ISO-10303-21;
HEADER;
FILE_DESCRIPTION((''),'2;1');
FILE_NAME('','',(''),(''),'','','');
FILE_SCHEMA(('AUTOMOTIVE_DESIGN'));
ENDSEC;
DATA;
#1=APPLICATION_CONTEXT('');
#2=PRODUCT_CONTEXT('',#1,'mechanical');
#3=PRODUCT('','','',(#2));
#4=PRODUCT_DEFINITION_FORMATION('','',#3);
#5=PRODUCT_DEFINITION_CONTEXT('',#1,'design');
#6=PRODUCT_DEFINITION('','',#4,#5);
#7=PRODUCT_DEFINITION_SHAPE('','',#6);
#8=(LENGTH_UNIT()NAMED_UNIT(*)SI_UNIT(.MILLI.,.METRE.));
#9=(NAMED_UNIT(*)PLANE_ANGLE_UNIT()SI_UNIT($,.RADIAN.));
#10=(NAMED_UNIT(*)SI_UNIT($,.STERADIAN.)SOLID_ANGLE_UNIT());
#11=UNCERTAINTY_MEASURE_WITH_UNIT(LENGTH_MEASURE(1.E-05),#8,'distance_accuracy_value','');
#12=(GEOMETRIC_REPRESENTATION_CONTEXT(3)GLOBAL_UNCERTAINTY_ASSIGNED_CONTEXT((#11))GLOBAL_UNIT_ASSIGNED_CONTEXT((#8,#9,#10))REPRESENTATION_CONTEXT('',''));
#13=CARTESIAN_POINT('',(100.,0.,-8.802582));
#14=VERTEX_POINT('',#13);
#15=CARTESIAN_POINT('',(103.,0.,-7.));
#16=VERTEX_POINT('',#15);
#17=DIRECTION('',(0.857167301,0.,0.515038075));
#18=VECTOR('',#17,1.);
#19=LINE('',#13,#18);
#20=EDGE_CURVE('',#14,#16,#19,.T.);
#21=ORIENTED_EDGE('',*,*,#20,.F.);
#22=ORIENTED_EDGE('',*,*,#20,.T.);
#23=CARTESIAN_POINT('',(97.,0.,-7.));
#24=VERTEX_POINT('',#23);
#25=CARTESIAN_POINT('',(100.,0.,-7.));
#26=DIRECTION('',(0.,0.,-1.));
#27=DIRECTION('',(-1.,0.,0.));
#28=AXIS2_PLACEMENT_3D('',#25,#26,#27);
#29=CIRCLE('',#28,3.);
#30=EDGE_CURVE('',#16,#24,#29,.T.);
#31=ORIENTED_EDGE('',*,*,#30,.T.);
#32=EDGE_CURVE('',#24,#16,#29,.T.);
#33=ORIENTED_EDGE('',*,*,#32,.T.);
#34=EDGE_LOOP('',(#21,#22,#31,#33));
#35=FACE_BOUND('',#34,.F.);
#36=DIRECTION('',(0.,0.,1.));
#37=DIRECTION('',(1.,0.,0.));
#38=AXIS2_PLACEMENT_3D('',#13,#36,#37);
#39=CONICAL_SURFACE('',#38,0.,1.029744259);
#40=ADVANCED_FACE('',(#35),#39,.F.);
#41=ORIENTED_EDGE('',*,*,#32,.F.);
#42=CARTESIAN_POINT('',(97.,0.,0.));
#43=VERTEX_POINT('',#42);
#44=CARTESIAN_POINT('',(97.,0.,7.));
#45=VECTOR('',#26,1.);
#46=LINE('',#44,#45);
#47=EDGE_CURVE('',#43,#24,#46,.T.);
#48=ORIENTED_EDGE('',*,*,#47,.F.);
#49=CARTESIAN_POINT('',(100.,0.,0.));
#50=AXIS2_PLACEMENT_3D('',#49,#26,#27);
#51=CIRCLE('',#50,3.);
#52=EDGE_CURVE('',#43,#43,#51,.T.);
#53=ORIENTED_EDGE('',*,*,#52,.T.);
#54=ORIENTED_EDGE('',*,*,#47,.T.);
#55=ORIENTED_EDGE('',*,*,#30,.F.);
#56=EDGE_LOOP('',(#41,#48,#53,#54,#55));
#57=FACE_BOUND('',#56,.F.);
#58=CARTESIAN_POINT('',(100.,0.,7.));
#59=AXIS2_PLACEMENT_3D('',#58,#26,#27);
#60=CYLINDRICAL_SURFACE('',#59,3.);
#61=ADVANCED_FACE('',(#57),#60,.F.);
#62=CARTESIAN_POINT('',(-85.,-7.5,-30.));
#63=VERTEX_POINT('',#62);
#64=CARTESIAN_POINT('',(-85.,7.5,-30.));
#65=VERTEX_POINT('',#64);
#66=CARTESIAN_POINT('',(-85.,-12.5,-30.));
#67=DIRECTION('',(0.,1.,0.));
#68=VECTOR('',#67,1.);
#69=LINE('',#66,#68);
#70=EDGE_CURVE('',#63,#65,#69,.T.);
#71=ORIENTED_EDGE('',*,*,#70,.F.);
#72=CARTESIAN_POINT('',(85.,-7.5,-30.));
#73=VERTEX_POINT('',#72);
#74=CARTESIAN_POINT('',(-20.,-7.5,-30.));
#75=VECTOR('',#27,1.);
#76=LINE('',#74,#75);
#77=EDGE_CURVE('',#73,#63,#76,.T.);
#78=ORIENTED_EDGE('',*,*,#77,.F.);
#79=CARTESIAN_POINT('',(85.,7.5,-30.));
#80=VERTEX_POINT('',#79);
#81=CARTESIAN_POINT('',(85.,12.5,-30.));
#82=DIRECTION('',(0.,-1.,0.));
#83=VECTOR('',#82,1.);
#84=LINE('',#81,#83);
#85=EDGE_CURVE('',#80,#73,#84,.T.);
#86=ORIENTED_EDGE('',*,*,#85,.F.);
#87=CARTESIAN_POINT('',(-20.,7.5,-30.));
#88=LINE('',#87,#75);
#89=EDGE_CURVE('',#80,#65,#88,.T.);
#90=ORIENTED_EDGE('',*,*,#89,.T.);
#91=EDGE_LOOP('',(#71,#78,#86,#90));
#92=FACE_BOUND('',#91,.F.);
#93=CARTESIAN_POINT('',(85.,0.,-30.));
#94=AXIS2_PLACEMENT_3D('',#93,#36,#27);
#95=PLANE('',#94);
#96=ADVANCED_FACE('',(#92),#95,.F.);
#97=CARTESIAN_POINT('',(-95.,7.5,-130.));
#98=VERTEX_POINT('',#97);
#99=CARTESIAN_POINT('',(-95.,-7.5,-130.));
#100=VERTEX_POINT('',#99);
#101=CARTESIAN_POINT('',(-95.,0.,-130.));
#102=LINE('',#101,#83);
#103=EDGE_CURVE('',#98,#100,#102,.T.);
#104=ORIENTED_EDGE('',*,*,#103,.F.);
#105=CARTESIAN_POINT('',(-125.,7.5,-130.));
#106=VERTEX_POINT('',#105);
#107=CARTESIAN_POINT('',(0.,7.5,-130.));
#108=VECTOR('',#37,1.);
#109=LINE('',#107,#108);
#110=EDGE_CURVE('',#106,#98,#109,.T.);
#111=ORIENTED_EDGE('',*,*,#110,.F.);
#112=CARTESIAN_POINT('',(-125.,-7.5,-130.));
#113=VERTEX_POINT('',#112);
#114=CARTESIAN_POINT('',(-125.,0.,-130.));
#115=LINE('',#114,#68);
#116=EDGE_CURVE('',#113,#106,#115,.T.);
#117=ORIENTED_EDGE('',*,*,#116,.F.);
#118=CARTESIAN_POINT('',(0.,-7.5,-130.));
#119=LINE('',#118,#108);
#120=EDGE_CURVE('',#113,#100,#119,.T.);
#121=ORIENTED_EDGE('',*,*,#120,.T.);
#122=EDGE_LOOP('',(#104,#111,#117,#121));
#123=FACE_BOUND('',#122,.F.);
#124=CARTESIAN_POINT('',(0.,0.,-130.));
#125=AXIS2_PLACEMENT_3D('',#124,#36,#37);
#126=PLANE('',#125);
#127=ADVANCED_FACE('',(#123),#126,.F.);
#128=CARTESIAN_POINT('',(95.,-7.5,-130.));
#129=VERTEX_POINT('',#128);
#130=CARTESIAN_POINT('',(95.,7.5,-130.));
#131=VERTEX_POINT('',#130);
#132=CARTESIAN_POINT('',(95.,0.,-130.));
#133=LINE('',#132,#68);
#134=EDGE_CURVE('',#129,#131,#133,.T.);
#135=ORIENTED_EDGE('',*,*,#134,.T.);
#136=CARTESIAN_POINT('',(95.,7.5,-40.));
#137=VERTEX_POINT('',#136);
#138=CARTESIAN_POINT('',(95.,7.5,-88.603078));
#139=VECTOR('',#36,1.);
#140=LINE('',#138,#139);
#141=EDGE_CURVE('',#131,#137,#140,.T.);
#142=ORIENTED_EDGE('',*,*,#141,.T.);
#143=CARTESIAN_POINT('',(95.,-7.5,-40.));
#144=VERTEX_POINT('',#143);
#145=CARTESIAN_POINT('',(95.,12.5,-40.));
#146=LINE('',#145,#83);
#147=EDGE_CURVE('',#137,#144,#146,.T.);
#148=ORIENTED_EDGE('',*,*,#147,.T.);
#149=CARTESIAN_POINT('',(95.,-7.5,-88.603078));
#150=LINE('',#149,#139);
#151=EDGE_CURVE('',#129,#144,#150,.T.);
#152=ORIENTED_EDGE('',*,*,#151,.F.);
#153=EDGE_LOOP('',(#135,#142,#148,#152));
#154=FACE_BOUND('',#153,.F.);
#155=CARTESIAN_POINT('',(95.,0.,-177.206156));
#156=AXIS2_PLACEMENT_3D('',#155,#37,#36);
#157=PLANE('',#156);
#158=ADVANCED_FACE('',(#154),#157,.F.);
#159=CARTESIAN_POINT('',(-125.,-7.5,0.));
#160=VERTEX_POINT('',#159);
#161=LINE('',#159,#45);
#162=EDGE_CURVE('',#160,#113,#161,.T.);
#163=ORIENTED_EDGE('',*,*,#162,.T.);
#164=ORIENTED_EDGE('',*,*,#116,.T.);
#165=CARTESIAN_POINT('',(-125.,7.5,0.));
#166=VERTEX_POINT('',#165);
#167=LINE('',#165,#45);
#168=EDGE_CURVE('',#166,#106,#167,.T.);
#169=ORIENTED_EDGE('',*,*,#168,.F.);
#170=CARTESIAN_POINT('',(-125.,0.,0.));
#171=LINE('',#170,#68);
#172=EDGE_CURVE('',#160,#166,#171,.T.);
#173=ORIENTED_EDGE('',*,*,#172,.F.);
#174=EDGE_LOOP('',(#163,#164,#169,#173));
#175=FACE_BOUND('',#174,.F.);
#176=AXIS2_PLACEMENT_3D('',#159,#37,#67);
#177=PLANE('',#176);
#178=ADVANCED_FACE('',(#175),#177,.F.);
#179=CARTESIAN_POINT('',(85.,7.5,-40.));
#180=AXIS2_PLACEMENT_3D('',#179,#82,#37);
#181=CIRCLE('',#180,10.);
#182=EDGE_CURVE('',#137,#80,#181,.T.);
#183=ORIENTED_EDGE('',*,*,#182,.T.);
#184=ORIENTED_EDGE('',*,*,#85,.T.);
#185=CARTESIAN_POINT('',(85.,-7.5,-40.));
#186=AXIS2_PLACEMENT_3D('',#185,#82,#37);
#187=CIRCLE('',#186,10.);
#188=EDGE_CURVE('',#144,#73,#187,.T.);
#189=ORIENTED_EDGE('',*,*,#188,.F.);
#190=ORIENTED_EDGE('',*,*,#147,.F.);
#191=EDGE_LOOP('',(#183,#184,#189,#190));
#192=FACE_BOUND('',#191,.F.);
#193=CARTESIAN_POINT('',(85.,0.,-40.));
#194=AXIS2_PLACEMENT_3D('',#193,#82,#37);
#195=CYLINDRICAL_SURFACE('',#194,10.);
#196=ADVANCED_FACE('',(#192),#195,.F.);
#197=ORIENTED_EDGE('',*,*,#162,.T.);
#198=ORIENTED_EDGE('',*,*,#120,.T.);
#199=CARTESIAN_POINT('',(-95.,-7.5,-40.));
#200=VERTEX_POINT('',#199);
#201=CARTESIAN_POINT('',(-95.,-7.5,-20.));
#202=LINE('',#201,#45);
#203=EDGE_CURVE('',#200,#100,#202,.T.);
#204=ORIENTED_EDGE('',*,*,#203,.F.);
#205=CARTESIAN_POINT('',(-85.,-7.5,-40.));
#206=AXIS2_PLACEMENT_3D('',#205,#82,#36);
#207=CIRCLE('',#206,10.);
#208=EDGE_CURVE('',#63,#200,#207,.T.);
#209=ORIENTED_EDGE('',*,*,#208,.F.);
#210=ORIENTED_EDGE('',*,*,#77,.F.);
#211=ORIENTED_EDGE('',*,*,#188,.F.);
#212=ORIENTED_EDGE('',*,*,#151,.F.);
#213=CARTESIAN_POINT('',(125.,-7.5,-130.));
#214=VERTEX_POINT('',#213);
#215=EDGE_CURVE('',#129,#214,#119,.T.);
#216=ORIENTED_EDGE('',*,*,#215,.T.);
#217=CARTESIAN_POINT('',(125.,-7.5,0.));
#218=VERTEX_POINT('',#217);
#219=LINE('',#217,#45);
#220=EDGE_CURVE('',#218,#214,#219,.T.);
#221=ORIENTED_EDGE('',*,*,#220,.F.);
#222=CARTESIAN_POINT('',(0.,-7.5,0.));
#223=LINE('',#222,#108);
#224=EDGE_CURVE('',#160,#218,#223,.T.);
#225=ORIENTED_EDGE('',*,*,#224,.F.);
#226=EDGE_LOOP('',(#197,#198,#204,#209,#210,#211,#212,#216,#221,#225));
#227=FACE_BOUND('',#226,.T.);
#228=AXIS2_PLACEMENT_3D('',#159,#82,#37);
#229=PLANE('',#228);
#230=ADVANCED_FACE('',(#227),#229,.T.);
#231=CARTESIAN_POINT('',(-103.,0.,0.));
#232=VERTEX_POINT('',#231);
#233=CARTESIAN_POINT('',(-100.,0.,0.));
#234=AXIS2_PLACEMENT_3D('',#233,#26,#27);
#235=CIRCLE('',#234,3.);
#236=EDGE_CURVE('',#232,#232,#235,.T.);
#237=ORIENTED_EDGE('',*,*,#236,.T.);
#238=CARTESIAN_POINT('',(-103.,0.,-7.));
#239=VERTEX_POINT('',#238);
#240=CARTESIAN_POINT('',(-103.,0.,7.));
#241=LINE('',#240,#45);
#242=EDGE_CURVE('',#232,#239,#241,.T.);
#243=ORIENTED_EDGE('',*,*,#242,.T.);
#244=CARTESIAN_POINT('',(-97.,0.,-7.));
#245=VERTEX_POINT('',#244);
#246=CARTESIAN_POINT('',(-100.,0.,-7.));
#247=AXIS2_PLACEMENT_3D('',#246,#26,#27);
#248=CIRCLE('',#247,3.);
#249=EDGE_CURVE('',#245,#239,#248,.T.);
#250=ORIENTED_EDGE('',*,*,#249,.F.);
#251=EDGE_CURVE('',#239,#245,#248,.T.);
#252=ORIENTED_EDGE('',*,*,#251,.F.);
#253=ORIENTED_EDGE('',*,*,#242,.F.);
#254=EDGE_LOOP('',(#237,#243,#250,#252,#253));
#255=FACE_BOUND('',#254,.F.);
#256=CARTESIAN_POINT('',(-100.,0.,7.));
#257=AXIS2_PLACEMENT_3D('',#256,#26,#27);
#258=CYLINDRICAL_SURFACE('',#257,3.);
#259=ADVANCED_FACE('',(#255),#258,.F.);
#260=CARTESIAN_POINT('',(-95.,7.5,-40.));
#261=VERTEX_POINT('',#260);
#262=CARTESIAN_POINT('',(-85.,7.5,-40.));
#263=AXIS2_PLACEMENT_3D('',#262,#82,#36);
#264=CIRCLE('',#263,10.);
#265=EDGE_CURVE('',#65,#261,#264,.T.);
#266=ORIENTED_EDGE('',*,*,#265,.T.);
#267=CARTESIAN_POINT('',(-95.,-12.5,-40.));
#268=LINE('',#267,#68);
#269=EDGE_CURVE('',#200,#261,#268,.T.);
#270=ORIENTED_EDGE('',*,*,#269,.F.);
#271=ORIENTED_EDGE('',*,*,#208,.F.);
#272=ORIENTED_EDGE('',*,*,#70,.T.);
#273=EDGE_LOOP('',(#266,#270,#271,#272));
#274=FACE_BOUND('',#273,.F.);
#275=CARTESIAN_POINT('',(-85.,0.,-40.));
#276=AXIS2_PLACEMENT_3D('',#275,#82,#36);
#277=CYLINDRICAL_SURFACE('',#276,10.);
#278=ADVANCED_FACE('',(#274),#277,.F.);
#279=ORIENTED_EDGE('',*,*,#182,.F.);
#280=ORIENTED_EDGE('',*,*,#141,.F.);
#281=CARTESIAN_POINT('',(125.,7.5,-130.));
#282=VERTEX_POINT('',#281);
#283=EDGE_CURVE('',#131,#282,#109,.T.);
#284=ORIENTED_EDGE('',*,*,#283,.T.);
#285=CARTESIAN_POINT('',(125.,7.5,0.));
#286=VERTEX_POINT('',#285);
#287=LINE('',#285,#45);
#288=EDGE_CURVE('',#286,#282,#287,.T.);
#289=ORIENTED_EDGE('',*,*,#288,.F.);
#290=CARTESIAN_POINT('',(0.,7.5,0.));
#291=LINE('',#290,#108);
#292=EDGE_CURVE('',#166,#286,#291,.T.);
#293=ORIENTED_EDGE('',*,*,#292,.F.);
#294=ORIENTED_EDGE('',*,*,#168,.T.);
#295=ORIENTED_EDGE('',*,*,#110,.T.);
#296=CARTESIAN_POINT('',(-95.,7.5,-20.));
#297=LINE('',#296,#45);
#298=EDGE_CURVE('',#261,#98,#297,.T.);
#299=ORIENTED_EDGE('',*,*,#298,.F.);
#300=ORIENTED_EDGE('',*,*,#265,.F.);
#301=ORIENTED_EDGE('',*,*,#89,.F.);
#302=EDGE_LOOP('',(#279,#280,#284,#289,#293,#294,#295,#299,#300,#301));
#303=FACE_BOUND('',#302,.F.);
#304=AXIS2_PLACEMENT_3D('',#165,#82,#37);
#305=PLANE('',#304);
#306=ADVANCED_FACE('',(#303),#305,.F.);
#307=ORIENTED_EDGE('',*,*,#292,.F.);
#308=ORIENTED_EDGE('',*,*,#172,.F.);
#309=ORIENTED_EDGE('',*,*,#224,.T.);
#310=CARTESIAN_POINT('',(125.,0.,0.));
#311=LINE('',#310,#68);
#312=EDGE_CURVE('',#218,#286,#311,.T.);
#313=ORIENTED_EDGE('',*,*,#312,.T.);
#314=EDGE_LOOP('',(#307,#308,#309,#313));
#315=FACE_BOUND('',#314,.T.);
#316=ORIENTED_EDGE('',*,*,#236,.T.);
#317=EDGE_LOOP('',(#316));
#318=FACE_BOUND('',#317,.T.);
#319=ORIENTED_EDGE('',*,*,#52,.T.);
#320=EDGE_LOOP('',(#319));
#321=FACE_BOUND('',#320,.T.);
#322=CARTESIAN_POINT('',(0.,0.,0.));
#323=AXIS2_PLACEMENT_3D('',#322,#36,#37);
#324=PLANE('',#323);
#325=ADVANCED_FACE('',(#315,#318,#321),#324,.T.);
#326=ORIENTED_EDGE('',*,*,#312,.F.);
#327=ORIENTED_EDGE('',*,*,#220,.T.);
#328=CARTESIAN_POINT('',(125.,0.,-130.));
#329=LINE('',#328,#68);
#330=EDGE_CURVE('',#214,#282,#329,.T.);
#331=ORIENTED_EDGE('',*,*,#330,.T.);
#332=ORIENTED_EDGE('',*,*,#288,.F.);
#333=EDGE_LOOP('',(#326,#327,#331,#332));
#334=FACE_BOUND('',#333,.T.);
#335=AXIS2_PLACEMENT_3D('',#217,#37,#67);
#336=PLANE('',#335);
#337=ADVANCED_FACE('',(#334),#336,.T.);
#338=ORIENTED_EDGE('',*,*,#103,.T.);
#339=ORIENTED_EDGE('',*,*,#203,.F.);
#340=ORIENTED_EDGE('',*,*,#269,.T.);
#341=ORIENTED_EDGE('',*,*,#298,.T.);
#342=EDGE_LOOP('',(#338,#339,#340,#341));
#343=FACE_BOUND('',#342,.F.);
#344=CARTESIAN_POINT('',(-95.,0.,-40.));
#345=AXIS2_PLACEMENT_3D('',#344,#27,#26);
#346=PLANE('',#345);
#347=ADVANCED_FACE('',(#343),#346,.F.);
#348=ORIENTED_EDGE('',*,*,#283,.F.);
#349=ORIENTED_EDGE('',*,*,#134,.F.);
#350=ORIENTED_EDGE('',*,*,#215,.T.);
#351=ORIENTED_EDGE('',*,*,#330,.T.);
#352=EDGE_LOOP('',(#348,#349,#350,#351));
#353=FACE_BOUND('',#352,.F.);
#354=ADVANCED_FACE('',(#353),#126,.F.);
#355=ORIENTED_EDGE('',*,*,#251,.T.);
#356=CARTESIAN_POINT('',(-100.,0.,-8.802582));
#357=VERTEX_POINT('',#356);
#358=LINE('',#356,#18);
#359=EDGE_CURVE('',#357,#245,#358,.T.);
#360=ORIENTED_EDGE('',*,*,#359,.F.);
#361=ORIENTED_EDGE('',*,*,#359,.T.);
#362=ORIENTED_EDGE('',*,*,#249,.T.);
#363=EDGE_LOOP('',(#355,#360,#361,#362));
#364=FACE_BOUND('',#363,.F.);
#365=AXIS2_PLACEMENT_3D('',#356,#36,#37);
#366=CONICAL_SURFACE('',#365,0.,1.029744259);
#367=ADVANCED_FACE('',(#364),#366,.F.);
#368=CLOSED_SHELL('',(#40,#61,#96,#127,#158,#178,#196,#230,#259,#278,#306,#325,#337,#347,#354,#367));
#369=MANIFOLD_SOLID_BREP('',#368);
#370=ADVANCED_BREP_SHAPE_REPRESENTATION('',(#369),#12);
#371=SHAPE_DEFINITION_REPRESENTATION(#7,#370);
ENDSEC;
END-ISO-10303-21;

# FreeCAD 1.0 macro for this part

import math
import FreeCAD as App
import Part
import Sketcher
Q = App.Units.Quantity


def add_polygon(sketch, points):
    """Adds a closed chain of lines whose ends are joined by coincident constraints."""
    first, n = sketch.GeometryCount, len(points)
    for a, b in zip(points, points[1:] + points[:1]):
        sketch.addGeometry(Part.LineSegment(App.Vector(*a, 0), App.Vector(*b, 0)), False)
    for i in range(n):
        sketch.addConstraint(Sketcher.Constraint("Coincident", first + i, 2, first + (i + 1) % n, 1))

doc = App.newDocument("Part")
body = doc.addObject("PartDesign::Body", "Body")

sketch1 = body.newObject("Sketcher::SketchObject", "Sketch")
sketch1.AttachmentSupport = (doc.getObject("XY_Plane"), [""])
sketch1.MapMode = "FlatFace"
add_polygon(sketch1, [(-125, 8), (-125, -8), (125, -8), (125, 8)])
sketch1.addConstraint([
    Sketcher.Constraint("Vertical", 0),
    Sketcher.Constraint("Horizontal", 1),
    Sketcher.Constraint("Vertical", 2),
    Sketcher.Constraint("Horizontal", 3),
    Sketcher.Constraint("Symmetric", 0, 2, 2, 2, -1, 1),
    Sketcher.Constraint("DistanceX", 1, 1, 1, 2, Q("250 mm")),
    Sketcher.Constraint("DistanceY", 0, 2, 0, 1, Q("15 mm")),
])
pad1 = body.newObject("PartDesign::Pad", "Pad")
pad1.Profile = sketch1
pad1.Length = 130
pad1.Reversed = True

sketch2 = body.newObject("Sketcher::SketchObject", "Sketch001")
sketch2.AttachmentSupport = (doc.getObject("XY_Plane"), [""])
sketch2.MapMode = "FlatFace"
sketch2.addGeometry([
    Part.Circle(App.Vector(-100, 0, 0), App.Vector(0, 0, 1), 3),
    Part.Circle(App.Vector(100, 0, 0), App.Vector(0, 0, 1), 3),
], False)
sketch2.addConstraint([
    Sketcher.Constraint("Equal", 0, 1),
    Sketcher.Constraint("Symmetric", 0, 3, 1, 3, -1, 1),
    Sketcher.Constraint("PointOnObject", 0, 3, -1),
    Sketcher.Constraint("Diameter", 0, Q("6 mm")),
    Sketcher.Constraint("DistanceX", 0, 3, -1, 1, Q("100 mm")),
])
doc.recompute()
hole = body.newObject("PartDesign::Hole", "Hole")
hole.Profile = sketch2
hole.ThreadType = "None"
hole.Diameter = 6
hole.DepthType = "Dimension"
hole.Depth = 7
hole.DrillPoint = "Angled"
hole.DrillPointAngle = 118

sketch3 = body.newObject("Sketcher::SketchObject", "Sketch002")
sketch3.AttachmentSupport = (doc.getObject("XZ_Plane"), [""])
sketch3.MapMode = "FlatFace"
sketch3.addGeometry([
    Part.LineSegment(App.Vector(-95, -177, 0), App.Vector(95, -177, 0)),
    Part.LineSegment(App.Vector(95, -177, 0), App.Vector(95, -40, 0)),
    Part.ArcOfCircle(Part.Circle(App.Vector(85, -40, 0), App.Vector(0, 0, 1), 10), math.radians(0), math.radians(90)),
    Part.LineSegment(App.Vector(85, -30, 0), App.Vector(-85, -30, 0)),
    Part.ArcOfCircle(Part.Circle(App.Vector(-85, -40, 0), App.Vector(0, 0, 1), 10), math.radians(90), math.radians(180)),
    Part.LineSegment(App.Vector(-95, -40, 0), App.Vector(-95, -177, 0)),
], False)
sketch3.addConstraint([
    Sketcher.Constraint("Coincident", 0, 2, 1, 1),
    Sketcher.Constraint("Tangent", 1, 2, 2, 1),
    Sketcher.Constraint("Tangent", 2, 2, 3, 1),
    Sketcher.Constraint("Tangent", 3, 2, 4, 1),
    Sketcher.Constraint("Tangent", 4, 2, 5, 1),
    Sketcher.Constraint("Coincident", 5, 2, 0, 1),
    Sketcher.Constraint("Horizontal", 0),
    Sketcher.Constraint("Vertical", 1),
    Sketcher.Constraint("Horizontal", 3),
    Sketcher.Constraint("Vertical", 5),
    Sketcher.Constraint("Equal", 2, 4),
    Sketcher.Constraint("Radius", 2, Q("10 mm")),
    Sketcher.Constraint("DistanceX", 0, 1, 0, 2, Q("190 mm")),
    Sketcher.Constraint("DistanceX", -1, 1, 2, 3, Q("85 mm")),
    Sketcher.Constraint("DistanceY", 2, 3, -1, 1, Q("40 mm")),
    Sketcher.Constraint("DistanceY", 1, 1, 1, 2, Q("137.206156 mm")),
])
pocket1 = body.newObject("PartDesign::Pocket", "Pocket")
pocket1.Profile = sketch3
pocket1.Length = 25
pocket1.Midplane = True

doc.recompute()
